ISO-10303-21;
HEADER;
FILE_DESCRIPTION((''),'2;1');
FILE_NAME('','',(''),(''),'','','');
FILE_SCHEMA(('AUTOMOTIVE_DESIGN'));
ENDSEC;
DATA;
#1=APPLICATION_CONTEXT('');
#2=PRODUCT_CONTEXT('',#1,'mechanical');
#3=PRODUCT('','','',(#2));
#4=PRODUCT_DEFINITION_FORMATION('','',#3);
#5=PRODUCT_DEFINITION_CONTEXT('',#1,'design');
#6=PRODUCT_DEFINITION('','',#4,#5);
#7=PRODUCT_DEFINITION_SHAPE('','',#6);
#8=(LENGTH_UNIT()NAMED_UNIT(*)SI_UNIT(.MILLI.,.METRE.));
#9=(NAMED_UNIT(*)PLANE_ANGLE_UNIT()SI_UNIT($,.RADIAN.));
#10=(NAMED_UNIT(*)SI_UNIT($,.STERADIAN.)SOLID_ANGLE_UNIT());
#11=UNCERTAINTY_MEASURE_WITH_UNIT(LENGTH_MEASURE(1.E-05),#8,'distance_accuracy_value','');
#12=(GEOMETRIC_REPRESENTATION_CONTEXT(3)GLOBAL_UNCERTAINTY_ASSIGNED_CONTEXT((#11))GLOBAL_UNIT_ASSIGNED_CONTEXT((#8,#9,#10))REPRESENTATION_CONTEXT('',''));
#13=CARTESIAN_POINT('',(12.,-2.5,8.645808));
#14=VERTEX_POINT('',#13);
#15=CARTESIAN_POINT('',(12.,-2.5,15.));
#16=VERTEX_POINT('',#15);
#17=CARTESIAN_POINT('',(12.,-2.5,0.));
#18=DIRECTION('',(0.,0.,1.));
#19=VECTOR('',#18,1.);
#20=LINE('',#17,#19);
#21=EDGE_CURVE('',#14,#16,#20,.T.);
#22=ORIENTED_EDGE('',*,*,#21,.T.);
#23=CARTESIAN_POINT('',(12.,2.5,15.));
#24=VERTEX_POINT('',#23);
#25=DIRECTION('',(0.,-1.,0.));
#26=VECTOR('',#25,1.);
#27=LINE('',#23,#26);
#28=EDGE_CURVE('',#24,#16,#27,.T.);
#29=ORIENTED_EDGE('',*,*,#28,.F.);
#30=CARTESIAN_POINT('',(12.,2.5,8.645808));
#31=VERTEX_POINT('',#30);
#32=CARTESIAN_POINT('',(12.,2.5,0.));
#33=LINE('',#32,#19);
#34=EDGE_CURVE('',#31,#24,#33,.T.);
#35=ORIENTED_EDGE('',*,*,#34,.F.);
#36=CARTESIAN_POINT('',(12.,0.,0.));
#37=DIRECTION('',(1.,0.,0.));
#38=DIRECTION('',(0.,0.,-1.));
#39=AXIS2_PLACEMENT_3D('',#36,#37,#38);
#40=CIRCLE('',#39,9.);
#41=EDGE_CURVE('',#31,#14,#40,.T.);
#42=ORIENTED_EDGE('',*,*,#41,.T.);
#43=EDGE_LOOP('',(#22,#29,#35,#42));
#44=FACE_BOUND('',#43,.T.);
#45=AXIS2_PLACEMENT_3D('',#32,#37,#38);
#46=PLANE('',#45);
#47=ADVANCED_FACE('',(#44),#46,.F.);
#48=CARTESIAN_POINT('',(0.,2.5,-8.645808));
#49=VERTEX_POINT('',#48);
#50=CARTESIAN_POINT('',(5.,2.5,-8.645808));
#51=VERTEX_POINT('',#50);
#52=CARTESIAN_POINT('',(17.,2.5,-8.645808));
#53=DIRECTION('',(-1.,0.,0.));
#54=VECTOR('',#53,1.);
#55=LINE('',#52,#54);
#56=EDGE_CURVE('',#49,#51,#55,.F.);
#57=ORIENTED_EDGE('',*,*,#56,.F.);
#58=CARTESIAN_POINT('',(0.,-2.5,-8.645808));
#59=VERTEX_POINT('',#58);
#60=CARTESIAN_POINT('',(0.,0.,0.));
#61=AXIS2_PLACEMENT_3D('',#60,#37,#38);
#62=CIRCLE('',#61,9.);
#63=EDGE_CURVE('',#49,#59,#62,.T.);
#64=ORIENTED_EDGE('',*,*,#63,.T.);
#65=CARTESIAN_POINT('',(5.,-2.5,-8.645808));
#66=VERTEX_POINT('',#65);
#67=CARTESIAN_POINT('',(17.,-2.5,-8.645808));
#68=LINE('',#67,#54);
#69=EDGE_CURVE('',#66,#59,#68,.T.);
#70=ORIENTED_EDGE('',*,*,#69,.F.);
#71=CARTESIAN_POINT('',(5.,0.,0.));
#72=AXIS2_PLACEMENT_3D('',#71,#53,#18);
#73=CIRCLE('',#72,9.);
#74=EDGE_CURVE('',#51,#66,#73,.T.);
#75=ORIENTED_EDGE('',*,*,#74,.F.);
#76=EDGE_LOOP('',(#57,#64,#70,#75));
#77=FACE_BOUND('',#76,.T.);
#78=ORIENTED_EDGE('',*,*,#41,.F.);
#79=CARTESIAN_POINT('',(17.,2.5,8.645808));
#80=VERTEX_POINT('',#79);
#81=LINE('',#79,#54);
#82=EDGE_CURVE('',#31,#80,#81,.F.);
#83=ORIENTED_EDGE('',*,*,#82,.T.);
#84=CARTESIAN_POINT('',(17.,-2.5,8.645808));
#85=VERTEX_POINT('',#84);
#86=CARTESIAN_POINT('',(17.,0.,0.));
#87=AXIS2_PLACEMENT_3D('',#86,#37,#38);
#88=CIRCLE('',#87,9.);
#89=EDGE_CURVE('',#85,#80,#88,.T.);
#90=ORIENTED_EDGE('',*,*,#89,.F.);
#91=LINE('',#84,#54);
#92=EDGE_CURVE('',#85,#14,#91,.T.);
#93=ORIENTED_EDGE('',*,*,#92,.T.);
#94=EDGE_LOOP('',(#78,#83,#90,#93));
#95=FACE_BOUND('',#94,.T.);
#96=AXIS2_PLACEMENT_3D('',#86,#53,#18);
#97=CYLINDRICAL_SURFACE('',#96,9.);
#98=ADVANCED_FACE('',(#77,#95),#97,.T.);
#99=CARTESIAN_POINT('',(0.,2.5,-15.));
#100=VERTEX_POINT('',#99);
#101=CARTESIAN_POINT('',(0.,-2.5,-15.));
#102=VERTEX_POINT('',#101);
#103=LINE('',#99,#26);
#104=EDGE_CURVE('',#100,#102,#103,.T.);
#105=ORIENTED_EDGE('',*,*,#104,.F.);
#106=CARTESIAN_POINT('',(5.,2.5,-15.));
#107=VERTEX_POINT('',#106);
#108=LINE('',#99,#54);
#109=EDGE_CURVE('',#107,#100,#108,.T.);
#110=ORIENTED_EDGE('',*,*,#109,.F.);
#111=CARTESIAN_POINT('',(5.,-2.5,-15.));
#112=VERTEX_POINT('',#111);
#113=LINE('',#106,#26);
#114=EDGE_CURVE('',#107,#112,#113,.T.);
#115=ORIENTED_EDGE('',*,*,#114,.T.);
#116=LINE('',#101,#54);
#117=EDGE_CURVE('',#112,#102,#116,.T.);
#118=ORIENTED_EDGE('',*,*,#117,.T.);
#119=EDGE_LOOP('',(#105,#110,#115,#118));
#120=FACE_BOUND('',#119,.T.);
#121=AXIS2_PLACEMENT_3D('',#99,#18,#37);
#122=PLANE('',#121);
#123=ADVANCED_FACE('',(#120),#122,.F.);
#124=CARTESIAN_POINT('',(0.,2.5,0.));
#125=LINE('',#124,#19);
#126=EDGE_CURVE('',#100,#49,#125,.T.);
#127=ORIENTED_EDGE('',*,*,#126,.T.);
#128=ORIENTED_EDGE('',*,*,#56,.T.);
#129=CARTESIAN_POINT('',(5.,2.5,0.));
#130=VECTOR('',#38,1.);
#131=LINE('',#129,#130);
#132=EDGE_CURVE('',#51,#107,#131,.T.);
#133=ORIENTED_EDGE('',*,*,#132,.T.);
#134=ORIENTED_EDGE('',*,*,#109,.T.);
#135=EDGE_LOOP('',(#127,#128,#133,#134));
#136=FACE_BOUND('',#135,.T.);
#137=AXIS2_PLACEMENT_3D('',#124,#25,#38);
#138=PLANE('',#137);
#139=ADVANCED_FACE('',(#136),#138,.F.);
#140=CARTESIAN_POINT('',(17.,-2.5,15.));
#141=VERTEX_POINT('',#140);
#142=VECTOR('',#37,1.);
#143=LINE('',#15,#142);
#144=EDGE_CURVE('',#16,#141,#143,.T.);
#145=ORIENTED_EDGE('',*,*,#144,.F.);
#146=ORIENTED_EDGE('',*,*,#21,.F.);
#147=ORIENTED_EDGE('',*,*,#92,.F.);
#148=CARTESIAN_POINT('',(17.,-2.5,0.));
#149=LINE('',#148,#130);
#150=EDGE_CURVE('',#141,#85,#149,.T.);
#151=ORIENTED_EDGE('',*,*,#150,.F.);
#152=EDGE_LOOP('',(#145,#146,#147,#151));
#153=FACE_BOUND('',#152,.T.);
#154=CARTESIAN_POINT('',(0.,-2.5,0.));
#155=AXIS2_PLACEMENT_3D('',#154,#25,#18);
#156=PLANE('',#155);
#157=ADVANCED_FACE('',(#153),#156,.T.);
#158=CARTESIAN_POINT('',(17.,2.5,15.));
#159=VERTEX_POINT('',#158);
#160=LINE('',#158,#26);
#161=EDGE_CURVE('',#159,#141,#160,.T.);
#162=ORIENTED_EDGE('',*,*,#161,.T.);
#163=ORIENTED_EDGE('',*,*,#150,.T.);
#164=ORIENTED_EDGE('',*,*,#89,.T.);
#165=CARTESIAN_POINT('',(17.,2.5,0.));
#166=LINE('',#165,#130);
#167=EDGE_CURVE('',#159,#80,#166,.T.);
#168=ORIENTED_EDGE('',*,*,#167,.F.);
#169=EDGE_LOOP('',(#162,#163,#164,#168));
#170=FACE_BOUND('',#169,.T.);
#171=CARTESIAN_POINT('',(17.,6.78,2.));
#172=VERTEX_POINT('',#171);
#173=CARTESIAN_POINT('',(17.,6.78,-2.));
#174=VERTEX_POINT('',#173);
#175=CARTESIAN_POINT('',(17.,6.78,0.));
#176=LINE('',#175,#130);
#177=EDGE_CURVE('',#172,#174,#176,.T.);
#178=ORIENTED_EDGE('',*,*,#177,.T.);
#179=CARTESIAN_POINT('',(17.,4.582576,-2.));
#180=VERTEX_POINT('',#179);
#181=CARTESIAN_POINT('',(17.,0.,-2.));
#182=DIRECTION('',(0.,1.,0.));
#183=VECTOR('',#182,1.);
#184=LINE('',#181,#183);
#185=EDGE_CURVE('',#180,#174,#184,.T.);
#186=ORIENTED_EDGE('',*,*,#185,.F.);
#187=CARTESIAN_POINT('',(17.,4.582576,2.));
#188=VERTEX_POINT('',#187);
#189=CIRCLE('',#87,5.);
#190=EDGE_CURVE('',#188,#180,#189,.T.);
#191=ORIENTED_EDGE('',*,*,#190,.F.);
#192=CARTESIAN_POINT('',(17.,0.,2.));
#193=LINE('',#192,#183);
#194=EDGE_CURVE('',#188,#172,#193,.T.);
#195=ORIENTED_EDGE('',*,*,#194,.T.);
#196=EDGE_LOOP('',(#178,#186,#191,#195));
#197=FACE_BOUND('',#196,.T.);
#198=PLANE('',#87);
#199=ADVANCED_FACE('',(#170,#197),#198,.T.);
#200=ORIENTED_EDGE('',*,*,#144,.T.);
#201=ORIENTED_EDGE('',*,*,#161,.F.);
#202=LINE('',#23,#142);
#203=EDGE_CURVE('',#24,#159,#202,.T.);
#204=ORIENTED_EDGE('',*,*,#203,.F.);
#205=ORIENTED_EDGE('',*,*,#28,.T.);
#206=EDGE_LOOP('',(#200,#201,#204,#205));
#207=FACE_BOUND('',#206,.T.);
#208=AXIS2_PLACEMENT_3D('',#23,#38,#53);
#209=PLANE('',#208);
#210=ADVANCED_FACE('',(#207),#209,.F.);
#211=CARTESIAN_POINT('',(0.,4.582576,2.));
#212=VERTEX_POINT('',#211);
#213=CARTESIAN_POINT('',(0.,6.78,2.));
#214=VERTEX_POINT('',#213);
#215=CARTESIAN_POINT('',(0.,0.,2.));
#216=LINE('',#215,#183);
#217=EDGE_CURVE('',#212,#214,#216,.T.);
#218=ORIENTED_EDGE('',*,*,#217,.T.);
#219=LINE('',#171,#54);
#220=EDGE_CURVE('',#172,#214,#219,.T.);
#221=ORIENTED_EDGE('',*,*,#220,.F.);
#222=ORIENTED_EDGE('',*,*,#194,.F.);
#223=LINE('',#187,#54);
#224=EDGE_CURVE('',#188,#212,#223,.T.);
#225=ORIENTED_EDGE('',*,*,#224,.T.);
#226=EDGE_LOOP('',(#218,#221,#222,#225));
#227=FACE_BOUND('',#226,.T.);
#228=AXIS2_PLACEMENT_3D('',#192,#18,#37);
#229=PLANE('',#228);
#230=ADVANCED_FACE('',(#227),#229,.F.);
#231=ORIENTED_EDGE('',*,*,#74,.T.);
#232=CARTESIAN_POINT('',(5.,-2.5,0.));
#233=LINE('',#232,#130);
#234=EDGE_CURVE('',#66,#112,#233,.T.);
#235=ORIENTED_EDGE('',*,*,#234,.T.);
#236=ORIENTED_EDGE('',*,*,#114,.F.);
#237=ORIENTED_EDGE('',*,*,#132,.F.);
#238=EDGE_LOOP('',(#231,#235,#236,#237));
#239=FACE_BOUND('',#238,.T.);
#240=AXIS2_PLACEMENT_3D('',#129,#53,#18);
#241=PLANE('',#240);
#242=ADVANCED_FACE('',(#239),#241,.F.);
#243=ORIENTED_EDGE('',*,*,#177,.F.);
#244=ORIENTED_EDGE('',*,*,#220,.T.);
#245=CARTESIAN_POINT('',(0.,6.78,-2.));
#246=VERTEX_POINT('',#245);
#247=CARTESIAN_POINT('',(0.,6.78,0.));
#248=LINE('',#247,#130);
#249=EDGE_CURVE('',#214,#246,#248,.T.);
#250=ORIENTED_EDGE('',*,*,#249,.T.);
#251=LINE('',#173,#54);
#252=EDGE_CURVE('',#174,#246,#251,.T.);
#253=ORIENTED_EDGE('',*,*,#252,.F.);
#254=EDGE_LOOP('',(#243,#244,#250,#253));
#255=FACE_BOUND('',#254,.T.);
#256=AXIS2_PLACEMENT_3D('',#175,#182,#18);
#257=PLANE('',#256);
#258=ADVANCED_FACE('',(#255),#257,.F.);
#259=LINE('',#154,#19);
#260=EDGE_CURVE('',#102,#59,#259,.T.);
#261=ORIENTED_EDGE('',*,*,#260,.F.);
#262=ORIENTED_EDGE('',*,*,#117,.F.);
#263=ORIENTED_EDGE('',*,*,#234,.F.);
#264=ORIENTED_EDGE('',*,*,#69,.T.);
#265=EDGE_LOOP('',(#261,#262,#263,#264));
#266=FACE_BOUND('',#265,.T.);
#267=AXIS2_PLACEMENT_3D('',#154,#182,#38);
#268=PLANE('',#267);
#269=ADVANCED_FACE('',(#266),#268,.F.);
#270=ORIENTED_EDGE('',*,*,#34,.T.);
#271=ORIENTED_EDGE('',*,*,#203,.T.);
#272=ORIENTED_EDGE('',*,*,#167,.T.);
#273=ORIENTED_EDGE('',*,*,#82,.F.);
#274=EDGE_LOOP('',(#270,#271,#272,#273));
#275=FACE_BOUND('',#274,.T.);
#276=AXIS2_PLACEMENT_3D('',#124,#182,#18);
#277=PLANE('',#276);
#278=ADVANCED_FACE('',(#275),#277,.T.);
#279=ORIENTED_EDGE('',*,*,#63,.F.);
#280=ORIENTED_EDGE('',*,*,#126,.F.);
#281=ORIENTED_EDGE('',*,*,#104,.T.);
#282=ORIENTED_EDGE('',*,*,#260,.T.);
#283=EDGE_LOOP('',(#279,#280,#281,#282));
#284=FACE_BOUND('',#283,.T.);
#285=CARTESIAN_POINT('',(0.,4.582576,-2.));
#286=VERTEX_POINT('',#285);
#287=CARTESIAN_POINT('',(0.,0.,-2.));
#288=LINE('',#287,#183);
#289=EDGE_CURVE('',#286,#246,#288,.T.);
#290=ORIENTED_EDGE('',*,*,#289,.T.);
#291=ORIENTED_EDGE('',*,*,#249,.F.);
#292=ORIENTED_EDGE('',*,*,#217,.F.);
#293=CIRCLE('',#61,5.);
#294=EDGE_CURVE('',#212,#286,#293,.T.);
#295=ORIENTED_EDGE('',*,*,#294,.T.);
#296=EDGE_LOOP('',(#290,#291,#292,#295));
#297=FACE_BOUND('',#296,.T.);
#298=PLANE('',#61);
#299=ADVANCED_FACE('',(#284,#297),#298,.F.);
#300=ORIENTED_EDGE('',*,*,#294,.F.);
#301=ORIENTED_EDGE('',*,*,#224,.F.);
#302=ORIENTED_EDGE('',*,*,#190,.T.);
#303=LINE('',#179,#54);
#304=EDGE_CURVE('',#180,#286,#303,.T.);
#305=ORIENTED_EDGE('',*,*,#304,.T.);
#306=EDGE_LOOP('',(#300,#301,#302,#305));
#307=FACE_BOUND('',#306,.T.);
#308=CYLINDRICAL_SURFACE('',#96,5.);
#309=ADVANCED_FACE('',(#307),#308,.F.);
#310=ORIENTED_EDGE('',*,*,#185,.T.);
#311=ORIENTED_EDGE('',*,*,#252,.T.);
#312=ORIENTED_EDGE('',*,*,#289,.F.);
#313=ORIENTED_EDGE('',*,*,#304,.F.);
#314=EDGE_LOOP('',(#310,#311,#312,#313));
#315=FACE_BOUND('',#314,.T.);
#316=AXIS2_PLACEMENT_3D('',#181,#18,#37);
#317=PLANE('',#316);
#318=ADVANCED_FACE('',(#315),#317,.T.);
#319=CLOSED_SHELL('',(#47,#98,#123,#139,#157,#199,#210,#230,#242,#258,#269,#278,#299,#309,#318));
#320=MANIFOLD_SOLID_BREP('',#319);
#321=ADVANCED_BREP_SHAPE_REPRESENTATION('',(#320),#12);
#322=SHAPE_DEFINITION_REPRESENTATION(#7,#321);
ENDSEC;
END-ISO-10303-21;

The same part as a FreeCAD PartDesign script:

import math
import FreeCAD as App
import Part
import Sketcher

V = App.Vector


def add_polygon(sketch, points):
    """Adds a closed chain of lines whose ends are joined by coincident constraints."""
    first, n = sketch.GeometryCount, len(points)
    for a, b in zip(points, points[1:] + points[:1]):
        sketch.addGeometry(Part.LineSegment(App.Vector(*a, 0), App.Vector(*b, 0)), False)
    for i in range(n):
        sketch.addConstraint(Sketcher.Constraint("Coincident", first + i, 2, first + (i + 1) % n, 1))

doc = App.newDocument("Part")
params = doc.addObject("Spreadsheet::Sheet", "Params")
for row, (alias, value) in enumerate([
    ("sketch1_diameter", "18 mm"),
    ("sketch1_radius", "5 mm"),
    ("sketch1_height", "4 mm"),
    ("pad1_length", "17 mm"),
    ("sketch2_width", "5 mm"),
    ("sketch2_height", "15 mm"),
    ("pad2_length", "2.5 mm"),
    ("sketch3_diameter", "10 mm"),
], start=1):
    params.set(f"A{row}", alias)
    params.set(f"B{row}", "=" + value)
    params.setAlias(f"B{row}", alias)

body = doc.addObject("PartDesign::Body", "Body")

sketch1 = doc.addObject("Sketcher::SketchObject", "Sketch")
body.addObject(sketch1)
sketch1.AttachmentSupport = (doc.YZ_Plane, [""])
sketch1.MapMode = "FlatFace"
sketch1.addGeometry([
    Part.Circle(V(0, 0, 0), V(0, 0, 1), 9),
    Part.ArcOfCircle(Part.Circle(V(0, 0, 0), V(0, 0, 1), 5), math.radians(-90), math.radians(-24)),
    Part.ArcOfCircle(Part.Circle(V(0, 0, 0), V(0, 0, 1), 5), math.radians(24), math.radians(270)),
    Part.LineSegment(V(4.6, 2, 0), V(6.8, 2, 0)),
    Part.LineSegment(V(6.8, 2, 0), V(6.8, -2, 0)),
    Part.LineSegment(V(6.8, -2, 0), V(4.6, -2, 0)),
], False)
sketch1.addConstraint([
    Sketcher.Constraint("Tangent", 1, 1, 2, 2),
    Sketcher.Constraint("Coincident", 2, 1, 3, 1),
    Sketcher.Constraint("Coincident", 3, 2, 4, 1),
    Sketcher.Constraint("Coincident", 4, 2, 5, 1),
    Sketcher.Constraint("Coincident", 5, 2, 1, 2),
    Sketcher.Constraint("Horizontal", 3),
    Sketcher.Constraint("Vertical", 4),
    Sketcher.Constraint("Horizontal", 5),
    Sketcher.Constraint("Coincident", 0, 3, -1, 1),
    Sketcher.Constraint("Coincident", 1, 3, -1, 1),
    Sketcher.Constraint("Equal", 1, 2),
    Sketcher.Constraint("PointOnObject", 1, 1, -2),
    Sketcher.Constraint("Vertical", 2, 1, 5, 2),
    Sketcher.Constraint("Diameter", 0, 18.0),
    Sketcher.Constraint("Radius", 1, 5.0),
    Sketcher.Constraint("DistanceY", 4, 2, 4, 1, 4.0),
    Sketcher.Constraint("DistanceX", -1, 1, 3, 2, 6.78),
])
sketch1.setExpression("Constraints[13]", "Params.sketch1_diameter")
sketch1.setExpression("Constraints[14]", "Params.sketch1_radius")
sketch1.setExpression("Constraints[15]", "Params.sketch1_height")
pad1 = doc.addObject("PartDesign::Pad", "Pad")
body.addObject(pad1)
pad1.Profile = sketch1
pad1.setExpression("Length", "Params.pad1_length")

sketch2 = doc.addObject("Sketcher::SketchObject", "Sketch001")
body.addObject(sketch2)
sketch2.AttachmentSupport = (doc.XZ_Plane, [""])
sketch2.MapMode = "FlatFace"
add_polygon(sketch2, [(0, -15), (0, 0), (5, 0), (5, -15)])
add_polygon(sketch2, [(12, 0), (12, 15), (17, 15), (17, 0)])
sketch2.addConstraint([
    Sketcher.Constraint("Vertical", 0),
    Sketcher.Constraint("Horizontal", 1),
    Sketcher.Constraint("Vertical", 2),
    Sketcher.Constraint("Horizontal", 3),
    Sketcher.Constraint("Vertical", 4),
    Sketcher.Constraint("Horizontal", 5),
    Sketcher.Constraint("Vertical", 6),
    Sketcher.Constraint("Horizontal", 7),
    Sketcher.Constraint("Coincident", 0, 2, -1, 1),
    Sketcher.Constraint("PointOnObject", 6, 2, -1),
    Sketcher.Constraint("Equal", 3, 5),
    Sketcher.Constraint("Equal", 2, 4),
    Sketcher.Constraint("DistanceX", 1, 1, 1, 2, 5.0),
    Sketcher.Constraint("DistanceY", 0, 1, 0, 2, 15.0),
    Sketcher.Constraint("DistanceX", -1, 1, 4, 2, 12.0),
])
sketch2.setExpression("Constraints[20]", "Params.sketch2_width")
sketch2.setExpression("Constraints[21]", "Params.sketch2_height")
pad2 = doc.addObject("PartDesign::Pad", "Pad001")
body.addObject(pad2)
pad2.Profile = sketch2
pad2.setExpression("Length", "Params.pad2_length")
pad2.Reversed = True
doc.recompute()

mirrored = doc.addObject("PartDesign::Mirrored", "Mirrored")
body.addObject(mirrored)
mirrored.Originals = [pad2]
mirrored.MirrorPlane = (doc.XZ_Plane, [""])
body.Tip = mirrored

sketch3 = doc.addObject("Sketcher::SketchObject", "Sketch002")
body.addObject(sketch3)
sketch3.AttachmentSupport = (doc.YZ_Plane, [""])
sketch3.MapMode = "FlatFace"
sketch3.addGeometry(Part.Circle(V(0, 0, 0), V(0, 0, 1), 5), False)
sketch3.addConstraint([
    Sketcher.Constraint("Coincident", 0, 3, -1, 1),
    Sketcher.Constraint("Diameter", 0, 10.0),
])
sketch3.setExpression("Constraints[1]", "Params.sketch3_diameter")
pocket1 = doc.addObject("PartDesign::Pocket", "Pocket")
body.addObject(pocket1)
pocket1.Profile = sketch3
pocket1.Type = "ThroughAll"
pocket1.Reversed = True

doc.recompute()
